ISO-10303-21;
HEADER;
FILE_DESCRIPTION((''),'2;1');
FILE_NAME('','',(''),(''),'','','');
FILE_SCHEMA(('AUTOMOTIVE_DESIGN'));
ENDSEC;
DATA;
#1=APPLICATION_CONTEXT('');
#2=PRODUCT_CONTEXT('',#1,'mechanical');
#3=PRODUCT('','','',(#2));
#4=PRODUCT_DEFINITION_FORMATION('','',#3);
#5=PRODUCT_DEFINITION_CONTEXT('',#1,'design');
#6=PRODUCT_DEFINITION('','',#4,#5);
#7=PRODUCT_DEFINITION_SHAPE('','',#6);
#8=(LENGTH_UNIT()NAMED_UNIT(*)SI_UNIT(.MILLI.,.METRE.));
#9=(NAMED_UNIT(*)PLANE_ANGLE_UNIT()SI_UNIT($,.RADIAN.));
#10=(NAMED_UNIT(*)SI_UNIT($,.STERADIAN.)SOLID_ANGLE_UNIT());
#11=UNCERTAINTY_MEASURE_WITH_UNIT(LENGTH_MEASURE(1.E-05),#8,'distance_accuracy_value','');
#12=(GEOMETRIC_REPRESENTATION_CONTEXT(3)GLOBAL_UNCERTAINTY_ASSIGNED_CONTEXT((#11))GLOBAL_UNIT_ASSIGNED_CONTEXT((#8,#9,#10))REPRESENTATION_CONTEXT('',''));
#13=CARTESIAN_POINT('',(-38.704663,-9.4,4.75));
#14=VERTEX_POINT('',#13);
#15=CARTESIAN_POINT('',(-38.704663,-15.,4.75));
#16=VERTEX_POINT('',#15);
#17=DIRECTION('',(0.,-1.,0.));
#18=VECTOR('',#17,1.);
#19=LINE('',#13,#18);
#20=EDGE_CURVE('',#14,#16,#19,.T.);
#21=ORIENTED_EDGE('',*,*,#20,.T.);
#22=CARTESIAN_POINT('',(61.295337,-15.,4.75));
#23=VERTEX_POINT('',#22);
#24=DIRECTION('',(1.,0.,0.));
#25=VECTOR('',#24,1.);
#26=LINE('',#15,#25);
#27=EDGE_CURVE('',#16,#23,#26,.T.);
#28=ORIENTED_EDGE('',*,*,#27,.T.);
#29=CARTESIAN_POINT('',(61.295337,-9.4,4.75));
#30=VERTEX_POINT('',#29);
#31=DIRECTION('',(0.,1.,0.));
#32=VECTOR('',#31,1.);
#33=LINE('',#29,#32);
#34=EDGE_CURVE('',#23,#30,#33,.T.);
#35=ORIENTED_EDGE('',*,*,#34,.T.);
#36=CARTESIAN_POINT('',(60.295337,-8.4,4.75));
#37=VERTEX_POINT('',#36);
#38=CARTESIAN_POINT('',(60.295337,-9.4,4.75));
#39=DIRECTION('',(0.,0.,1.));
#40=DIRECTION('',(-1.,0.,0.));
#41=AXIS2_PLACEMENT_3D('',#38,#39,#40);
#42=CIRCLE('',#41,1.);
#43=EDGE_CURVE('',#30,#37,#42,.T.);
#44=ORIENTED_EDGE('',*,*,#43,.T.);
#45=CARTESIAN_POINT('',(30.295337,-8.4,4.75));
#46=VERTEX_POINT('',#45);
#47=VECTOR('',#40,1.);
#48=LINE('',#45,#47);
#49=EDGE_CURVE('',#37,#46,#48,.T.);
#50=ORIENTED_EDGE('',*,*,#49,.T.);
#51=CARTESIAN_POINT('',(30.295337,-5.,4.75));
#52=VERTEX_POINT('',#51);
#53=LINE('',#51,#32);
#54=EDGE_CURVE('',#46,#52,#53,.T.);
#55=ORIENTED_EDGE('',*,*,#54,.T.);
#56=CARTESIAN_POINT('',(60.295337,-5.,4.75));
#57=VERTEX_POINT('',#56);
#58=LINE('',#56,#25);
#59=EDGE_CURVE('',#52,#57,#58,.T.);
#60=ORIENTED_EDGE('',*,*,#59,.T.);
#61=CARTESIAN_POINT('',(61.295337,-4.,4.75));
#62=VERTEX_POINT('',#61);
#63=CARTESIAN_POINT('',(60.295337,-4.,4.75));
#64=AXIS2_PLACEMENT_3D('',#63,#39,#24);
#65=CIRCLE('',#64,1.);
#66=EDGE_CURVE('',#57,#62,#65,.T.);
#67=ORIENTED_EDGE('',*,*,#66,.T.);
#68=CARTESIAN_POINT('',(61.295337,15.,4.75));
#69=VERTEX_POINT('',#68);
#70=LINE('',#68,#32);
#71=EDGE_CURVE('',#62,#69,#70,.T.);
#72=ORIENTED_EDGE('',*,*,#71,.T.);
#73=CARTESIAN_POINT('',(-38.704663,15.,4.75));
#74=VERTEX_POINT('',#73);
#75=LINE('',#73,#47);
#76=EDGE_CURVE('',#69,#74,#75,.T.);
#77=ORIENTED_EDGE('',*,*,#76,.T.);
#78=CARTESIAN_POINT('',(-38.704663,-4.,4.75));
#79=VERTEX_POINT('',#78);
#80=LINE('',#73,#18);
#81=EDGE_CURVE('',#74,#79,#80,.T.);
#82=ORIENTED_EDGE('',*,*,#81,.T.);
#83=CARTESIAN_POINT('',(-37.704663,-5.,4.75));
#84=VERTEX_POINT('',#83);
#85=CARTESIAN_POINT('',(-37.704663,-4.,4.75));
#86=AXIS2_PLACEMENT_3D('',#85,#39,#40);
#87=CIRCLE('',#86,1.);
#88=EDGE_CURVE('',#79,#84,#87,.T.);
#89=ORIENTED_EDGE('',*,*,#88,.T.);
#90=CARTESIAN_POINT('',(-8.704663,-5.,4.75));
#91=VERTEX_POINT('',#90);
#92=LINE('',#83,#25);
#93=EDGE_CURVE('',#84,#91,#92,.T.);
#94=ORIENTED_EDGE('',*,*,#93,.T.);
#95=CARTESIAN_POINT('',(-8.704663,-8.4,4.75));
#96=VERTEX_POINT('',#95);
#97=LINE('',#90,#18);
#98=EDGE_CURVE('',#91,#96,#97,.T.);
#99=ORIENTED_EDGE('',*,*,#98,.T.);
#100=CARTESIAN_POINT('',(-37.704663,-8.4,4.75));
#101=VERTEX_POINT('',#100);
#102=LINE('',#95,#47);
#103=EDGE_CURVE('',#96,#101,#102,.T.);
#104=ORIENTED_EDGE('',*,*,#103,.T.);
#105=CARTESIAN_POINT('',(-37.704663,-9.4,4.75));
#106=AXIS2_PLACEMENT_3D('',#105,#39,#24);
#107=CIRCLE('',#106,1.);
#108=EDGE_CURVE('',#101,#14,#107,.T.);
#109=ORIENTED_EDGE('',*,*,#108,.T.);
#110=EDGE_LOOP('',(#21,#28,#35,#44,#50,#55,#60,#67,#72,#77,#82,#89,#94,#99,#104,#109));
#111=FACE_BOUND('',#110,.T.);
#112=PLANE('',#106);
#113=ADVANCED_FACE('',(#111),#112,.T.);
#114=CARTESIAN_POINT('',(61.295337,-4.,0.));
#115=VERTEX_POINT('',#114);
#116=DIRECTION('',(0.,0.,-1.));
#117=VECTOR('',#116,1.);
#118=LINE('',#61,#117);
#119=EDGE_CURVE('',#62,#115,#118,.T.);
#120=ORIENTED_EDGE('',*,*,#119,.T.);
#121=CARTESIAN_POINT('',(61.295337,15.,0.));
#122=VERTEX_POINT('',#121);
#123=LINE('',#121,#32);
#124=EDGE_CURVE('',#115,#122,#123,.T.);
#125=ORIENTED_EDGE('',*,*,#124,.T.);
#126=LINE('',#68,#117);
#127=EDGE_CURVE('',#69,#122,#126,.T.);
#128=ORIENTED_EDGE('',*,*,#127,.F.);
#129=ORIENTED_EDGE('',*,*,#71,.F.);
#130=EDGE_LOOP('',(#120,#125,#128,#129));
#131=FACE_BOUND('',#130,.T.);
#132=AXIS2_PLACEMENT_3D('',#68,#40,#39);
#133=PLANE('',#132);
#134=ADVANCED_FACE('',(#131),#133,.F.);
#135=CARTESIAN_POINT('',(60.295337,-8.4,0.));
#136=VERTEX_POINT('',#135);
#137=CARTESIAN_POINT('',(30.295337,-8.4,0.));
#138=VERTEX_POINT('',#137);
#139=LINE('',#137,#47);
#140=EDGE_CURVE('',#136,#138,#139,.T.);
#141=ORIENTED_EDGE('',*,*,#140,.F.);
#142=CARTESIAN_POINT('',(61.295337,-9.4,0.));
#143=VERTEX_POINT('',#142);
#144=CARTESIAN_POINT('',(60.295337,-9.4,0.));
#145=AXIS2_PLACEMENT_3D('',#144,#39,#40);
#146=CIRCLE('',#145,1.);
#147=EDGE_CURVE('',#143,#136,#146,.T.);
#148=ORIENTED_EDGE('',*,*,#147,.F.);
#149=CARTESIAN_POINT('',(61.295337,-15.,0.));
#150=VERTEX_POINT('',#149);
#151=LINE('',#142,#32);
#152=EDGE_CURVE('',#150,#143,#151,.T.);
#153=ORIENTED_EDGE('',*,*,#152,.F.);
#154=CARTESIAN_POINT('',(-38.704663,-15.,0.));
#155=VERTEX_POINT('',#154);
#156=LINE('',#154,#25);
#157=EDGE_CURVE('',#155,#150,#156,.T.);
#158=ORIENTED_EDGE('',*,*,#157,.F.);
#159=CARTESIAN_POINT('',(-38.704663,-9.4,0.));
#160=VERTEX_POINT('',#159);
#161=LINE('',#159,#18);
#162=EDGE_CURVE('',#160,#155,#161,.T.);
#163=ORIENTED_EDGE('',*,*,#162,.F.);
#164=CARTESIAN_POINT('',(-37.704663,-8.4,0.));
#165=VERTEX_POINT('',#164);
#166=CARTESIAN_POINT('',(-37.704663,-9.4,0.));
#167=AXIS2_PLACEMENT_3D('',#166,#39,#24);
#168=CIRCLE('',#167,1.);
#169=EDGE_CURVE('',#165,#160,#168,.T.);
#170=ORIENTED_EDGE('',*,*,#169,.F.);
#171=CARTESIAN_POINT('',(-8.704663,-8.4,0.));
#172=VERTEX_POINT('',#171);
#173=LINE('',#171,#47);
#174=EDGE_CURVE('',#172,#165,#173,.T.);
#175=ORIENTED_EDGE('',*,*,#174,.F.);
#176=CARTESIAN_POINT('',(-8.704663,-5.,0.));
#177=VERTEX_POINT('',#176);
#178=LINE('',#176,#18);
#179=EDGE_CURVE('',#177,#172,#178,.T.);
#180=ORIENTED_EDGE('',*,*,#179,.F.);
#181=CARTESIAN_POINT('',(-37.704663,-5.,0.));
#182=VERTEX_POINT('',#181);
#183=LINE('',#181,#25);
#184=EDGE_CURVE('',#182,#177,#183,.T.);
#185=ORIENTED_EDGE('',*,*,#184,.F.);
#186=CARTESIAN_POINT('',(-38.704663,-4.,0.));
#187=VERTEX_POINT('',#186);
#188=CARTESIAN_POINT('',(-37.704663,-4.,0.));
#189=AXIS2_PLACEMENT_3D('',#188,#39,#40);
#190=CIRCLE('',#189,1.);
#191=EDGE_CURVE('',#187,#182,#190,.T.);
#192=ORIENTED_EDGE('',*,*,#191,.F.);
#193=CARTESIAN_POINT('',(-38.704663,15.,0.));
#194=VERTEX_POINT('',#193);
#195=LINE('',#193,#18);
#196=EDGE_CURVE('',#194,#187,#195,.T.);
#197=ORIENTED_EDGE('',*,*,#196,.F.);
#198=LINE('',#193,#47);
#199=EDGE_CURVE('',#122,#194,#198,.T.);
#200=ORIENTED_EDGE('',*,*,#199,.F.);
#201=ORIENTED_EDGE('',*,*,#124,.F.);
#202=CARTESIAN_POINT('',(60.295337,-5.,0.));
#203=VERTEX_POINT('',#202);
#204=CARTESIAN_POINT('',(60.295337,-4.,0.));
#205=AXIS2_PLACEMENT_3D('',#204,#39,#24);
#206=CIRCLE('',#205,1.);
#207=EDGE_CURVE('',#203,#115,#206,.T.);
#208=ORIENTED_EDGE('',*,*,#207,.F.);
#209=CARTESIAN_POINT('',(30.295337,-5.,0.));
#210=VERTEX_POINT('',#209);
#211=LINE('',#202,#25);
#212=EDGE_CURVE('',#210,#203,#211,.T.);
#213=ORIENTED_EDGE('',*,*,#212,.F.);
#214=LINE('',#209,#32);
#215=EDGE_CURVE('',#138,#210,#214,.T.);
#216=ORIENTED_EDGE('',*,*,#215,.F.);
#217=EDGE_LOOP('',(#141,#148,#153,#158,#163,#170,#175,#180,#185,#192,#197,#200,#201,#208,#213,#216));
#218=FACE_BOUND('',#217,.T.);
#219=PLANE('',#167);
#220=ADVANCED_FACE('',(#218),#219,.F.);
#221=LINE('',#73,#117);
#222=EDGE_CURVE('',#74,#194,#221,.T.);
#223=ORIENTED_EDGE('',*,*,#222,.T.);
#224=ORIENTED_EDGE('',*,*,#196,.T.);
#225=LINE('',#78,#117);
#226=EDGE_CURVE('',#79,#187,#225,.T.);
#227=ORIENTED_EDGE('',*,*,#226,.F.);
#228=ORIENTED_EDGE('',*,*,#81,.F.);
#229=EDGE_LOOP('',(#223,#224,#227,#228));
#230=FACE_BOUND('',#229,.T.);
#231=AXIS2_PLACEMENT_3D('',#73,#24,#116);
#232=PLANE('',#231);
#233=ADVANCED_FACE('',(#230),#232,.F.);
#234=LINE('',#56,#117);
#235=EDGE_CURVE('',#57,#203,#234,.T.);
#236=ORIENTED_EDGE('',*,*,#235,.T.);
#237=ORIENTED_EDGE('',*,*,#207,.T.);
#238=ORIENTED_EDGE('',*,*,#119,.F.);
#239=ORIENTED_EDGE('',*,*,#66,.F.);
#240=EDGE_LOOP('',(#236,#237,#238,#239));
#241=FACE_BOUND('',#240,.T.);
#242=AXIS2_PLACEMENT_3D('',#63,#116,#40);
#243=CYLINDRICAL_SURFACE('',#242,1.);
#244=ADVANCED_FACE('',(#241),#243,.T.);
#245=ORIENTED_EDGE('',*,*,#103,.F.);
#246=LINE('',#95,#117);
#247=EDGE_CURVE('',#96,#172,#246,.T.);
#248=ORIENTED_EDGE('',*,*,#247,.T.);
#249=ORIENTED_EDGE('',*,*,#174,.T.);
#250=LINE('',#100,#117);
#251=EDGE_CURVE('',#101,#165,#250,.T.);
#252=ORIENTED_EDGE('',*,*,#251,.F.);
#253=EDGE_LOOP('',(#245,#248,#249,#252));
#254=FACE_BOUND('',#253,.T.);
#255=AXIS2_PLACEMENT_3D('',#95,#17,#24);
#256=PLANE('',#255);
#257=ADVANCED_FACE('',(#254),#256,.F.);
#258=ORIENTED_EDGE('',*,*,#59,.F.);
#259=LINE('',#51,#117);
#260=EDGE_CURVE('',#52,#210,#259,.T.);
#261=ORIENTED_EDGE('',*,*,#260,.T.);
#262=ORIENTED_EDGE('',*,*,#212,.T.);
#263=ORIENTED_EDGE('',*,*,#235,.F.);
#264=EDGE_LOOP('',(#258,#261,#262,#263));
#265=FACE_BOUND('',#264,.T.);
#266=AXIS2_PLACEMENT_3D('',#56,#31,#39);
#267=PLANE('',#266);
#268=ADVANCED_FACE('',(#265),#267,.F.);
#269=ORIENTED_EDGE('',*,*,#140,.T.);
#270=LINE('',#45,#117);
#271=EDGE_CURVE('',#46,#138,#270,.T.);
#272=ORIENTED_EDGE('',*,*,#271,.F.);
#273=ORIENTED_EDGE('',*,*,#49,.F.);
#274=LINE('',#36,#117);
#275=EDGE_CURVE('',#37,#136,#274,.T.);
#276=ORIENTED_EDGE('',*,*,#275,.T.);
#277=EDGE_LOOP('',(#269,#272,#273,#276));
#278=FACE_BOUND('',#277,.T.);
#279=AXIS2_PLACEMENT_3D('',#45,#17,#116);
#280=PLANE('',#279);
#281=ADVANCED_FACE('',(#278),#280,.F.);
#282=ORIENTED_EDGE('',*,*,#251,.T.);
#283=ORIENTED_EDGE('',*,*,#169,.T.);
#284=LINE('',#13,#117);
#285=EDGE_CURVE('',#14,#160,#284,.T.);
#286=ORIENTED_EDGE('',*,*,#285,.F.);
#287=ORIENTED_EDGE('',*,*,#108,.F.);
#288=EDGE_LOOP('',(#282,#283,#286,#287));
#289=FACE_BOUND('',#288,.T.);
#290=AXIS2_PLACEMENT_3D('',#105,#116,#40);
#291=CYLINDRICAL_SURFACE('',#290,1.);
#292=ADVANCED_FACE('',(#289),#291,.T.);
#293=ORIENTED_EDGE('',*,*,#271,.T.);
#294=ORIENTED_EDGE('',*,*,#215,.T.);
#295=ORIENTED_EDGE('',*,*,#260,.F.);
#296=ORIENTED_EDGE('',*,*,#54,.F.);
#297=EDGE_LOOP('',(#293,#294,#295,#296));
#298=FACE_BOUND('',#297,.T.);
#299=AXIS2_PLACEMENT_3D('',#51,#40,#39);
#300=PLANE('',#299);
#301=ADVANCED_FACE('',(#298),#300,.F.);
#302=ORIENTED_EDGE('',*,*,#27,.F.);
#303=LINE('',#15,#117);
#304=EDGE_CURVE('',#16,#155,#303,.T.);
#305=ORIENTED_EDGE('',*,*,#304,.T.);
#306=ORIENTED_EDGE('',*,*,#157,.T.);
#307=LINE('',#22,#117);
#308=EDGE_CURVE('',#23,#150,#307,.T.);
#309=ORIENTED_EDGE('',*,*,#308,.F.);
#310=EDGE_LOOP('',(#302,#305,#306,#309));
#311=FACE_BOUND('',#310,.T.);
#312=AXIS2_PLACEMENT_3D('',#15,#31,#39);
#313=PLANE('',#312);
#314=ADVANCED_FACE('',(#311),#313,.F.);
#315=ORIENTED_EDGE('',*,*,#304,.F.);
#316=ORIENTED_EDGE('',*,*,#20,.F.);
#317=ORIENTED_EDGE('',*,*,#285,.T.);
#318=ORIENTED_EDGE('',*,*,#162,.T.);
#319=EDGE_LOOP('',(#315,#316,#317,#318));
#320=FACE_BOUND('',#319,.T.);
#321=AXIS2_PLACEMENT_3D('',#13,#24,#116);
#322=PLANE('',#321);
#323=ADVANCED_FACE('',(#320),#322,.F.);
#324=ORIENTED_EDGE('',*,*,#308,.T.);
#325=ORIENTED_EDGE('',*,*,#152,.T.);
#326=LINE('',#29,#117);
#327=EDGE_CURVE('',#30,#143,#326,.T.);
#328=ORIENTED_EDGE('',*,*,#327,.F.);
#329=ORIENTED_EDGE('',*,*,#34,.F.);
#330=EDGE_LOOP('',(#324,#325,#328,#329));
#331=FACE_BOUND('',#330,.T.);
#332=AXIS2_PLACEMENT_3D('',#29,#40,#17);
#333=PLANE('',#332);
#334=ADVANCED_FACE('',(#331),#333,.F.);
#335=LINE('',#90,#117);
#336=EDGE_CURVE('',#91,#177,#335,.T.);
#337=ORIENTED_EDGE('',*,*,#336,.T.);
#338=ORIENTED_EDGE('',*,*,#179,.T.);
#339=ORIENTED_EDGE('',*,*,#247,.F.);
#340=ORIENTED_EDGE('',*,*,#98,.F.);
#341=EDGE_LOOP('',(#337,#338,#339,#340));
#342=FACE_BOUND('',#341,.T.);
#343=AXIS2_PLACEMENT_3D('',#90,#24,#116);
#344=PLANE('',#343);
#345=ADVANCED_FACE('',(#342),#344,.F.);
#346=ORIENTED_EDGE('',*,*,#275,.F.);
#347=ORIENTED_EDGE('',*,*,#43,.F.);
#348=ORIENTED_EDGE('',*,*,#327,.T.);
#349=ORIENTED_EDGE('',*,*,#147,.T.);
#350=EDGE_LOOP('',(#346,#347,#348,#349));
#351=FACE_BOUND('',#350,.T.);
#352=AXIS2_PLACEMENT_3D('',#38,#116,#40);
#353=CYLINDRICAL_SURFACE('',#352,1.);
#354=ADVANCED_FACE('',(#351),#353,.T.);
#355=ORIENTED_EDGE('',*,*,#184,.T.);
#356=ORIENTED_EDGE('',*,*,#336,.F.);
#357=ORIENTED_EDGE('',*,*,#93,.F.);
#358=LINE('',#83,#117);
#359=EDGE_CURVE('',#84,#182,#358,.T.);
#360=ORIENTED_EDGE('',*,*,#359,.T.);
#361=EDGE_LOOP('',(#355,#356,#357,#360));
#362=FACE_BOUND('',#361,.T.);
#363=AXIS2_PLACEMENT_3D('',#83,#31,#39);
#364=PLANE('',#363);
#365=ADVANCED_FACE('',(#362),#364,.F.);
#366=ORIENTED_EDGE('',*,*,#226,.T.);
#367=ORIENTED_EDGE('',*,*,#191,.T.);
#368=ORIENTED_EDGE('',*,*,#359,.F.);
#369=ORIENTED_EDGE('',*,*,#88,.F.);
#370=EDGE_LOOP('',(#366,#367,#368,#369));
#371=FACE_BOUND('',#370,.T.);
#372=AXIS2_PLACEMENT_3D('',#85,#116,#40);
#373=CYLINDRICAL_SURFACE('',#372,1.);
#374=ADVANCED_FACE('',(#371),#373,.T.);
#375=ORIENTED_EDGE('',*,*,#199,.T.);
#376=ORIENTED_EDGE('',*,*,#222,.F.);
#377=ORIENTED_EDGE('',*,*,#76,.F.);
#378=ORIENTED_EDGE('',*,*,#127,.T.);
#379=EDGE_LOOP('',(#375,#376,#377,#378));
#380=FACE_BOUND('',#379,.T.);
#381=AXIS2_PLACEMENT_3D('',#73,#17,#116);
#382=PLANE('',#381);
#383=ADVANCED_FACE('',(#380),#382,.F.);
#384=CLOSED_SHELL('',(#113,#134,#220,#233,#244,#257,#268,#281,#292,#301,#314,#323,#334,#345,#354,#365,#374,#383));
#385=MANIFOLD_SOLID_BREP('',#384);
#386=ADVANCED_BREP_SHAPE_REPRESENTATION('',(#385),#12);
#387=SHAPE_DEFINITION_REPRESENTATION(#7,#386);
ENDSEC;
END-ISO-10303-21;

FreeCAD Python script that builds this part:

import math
import FreeCAD as App
import Part
import Sketcher
from FreeCAD import Vector

doc = App.newDocument("Part")
body = doc.addObject("PartDesign::Body", "Body")

sketch1 = body.newObject("Sketcher::SketchObject", "Sketch")
sketch1.AttachmentSupport = (doc.getObject("XY_Plane"), [""])
sketch1.MapMode = "FlatFace"
sketch1.addGeometry(Part.LineSegment(Vector(-37.7, -5, 0), Vector(-8.7, -5, 0)), False)
sketch1.addGeometry(Part.LineSegment(Vector(-8.7, -5, 0), Vector(-8.7, -8.4, 0)), False)
sketch1.addGeometry(Part.LineSegment(Vector(-8.7, -8.4, 0), Vector(-37.7, -8.4, 0)), False)
sketch1.addGeometry(Part.ArcOfCircle(Part.Circle(Vector(-37.7, -9.4, 0), Vector(0, 0, 1), 1), math.radians(90), math.radians(180)), False)
sketch1.addGeometry(Part.LineSegment(Vector(-38.7, -9.4, 0), Vector(-38.7, -15, 0)), False)
sketch1.addGeometry(Part.LineSegment(Vector(-38.7, -15, 0), Vector(61.3, -15, 0)), False)
sketch1.addGeometry(Part.LineSegment(Vector(61.3, -15, 0), Vector(61.3, -9.4, 0)), False)
sketch1.addGeometry(Part.ArcOfCircle(Part.Circle(Vector(60.3, -9.4, 0), Vector(0, 0, 1), 1), math.radians(0), math.radians(90)), False)
sketch1.addGeometry(Part.LineSegment(Vector(60.3, -8.4, 0), Vector(30.3, -8.4, 0)), False)
sketch1.addGeometry(Part.LineSegment(Vector(30.3, -8.4, 0), Vector(30.3, -5, 0)), False)
sketch1.addGeometry(Part.LineSegment(Vector(30.3, -5, 0), Vector(60.3, -5, 0)), False)
sketch1.addGeometry(Part.ArcOfCircle(Part.Circle(Vector(60.3, -4, 0), Vector(0, 0, 1), 1), math.radians(-90), math.radians(0)), False)
sketch1.addGeometry(Part.LineSegment(Vector(61.3, -4, 0), Vector(61.3, 15, 0)), False)
sketch1.addGeometry(Part.LineSegment(Vector(61.3, 15, 0), Vector(-38.7, 15, 0)), False)
sketch1.addGeometry(Part.LineSegment(Vector(-38.7, 15, 0), Vector(-38.7, -4, 0)), False)
sketch1.addGeometry(Part.ArcOfCircle(Part.Circle(Vector(-37.7, -4, 0), Vector(0, 0, 1), 1), math.radians(180), math.radians(270)), False)
sketch1.addConstraint(Sketcher.Constraint("Coincident", 0, 2, 1, 1))
sketch1.addConstraint(Sketcher.Constraint("Coincident", 1, 2, 2, 1))
sketch1.addConstraint(Sketcher.Constraint("Tangent", 2, 2, 3, 1))
sketch1.addConstraint(Sketcher.Constraint("Tangent", 3, 2, 4, 1))
sketch1.addConstraint(Sketcher.Constraint("Coincident", 4, 2, 5, 1))
sketch1.addConstraint(Sketcher.Constraint("Coincident", 5, 2, 6, 1))
sketch1.addConstraint(Sketcher.Constraint("Tangent", 6, 2, 7, 1))
sketch1.addConstraint(Sketcher.Constraint("Tangent", 7, 2, 8, 1))
sketch1.addConstraint(Sketcher.Constraint("Coincident", 8, 2, 9, 1))
sketch1.addConstraint(Sketcher.Constraint("Coincident", 9, 2, 10, 1))
sketch1.addConstraint(Sketcher.Constraint("Tangent", 10, 2, 11, 1))
sketch1.addConstraint(Sketcher.Constraint("Tangent", 11, 2, 12, 1))
sketch1.addConstraint(Sketcher.Constraint("Coincident", 12, 2, 13, 1))
sketch1.addConstraint(Sketcher.Constraint("Coincident", 13, 2, 14, 1))
sketch1.addConstraint(Sketcher.Constraint("Tangent", 14, 2, 15, 1))
sketch1.addConstraint(Sketcher.Constraint("Tangent", 15, 2, 0, 1))
sketch1.addConstraint(Sketcher.Constraint("Horizontal", 0))
sketch1.addConstraint(Sketcher.Constraint("Vertical", 1))
sketch1.addConstraint(Sketcher.Constraint("Horizontal", 2))
sketch1.addConstraint(Sketcher.Constraint("Vertical", 4))
sketch1.addConstraint(Sketcher.Constraint("Horizontal", 5))
sketch1.addConstraint(Sketcher.Constraint("Vertical", 6))
sketch1.addConstraint(Sketcher.Constraint("Horizontal", 8))
sketch1.addConstraint(Sketcher.Constraint("Vertical", 9))
sketch1.addConstraint(Sketcher.Constraint("Horizontal", 10))
sketch1.addConstraint(Sketcher.Constraint("Vertical", 12))
sketch1.addConstraint(Sketcher.Constraint("Horizontal", 13))
sketch1.addConstraint(Sketcher.Constraint("Vertical", 14))
sketch1.addConstraint(Sketcher.Constraint("Equal", 3, 7))
sketch1.addConstraint(Sketcher.Constraint("Equal", 7, 11))
sketch1.addConstraint(Sketcher.Constraint("Equal", 11, 15))
sketch1.addConstraint(Sketcher.Constraint("Symmetric", 5, 2, 12, 2, -1))
sketch1.addConstraint(Sketcher.Constraint("Horizontal", 3, 3, 7, 3))
sketch1.addConstraint(Sketcher.Constraint("Horizontal", 11, 3, 15, 3))
sketch1.addConstraint(Sketcher.Constraint("Vertical", 3, 3, 15, 3))
sketch1.addConstraint(Sketcher.Constraint("Radius", 3, 1.0))
sketch1.addConstraint(Sketcher.Constraint("DistanceX", 0, 1, 0, 2, 29.0))
sketch1.addConstraint(Sketcher.Constraint("DistanceX", 5, 1, 5, 2, 100.0))
sketch1.addConstraint(Sketcher.Constraint("DistanceX", 8, 2, 8, 1, 30.0))
sketch1.addConstraint(Sketcher.Constraint("DistanceY", 12, 1, 12, 2, 19.0))
sketch1.addConstraint(Sketcher.Constraint("DistanceY", 1, 2, 1, 1, 3.4))
sketch1.addConstraint(Sketcher.Constraint("DistanceY", 4, 2, 4, 1, 5.6))
sketch1.addConstraint(Sketcher.Constraint("DistanceX", 3, 3, -1, 1, 37.704663))
pad1 = body.newObject("PartDesign::Pad", "Pad")
pad1.Profile = sketch1
pad1.Length = 4.75

doc.recompute()
